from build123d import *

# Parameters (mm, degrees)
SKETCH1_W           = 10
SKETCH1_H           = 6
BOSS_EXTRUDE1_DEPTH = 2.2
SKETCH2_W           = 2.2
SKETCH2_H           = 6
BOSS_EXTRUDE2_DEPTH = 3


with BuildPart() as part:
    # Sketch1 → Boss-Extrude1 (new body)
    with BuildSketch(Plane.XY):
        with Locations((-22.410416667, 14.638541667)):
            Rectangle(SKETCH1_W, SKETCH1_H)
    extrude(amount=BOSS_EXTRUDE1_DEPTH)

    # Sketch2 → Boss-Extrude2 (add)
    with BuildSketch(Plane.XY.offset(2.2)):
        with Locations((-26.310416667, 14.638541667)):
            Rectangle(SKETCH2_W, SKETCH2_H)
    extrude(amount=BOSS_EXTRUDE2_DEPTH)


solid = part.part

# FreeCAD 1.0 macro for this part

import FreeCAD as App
import Part
import Sketcher


def add_polygon(sketch, points):
    """Adds a closed chain of lines whose ends are joined by coincident constraints."""
    first, n = sketch.GeometryCount, len(points)
    for a, b in zip(points, points[1:] + points[:1]):
        sketch.addGeometry(Part.LineSegment(App.Vector(*a, 0), App.Vector(*b, 0)), False)
    for i in range(n):
        sketch.addConstraint(Sketcher.Constraint("Coincident", first + i, 2, first + (i + 1) % n, 1))

doc = App.newDocument("Part")
body = doc.addObject("PartDesign::Body", "Body")

sketch1 = body.newObject("Sketcher::SketchObject", "Sketch")
sketch1.AttachmentSupport = (doc.getObject("XY_Plane"), [""])
sketch1.MapMode = "FlatFace"
add_polygon(sketch1, [(-27, 18), (-27, 12), (-17, 12), (-17, 18)])
sketch1.addConstraint([
    Sketcher.Constraint("Vertical", 0),
    Sketcher.Constraint("Horizontal", 1),
    Sketcher.Constraint("Vertical", 2),
    Sketcher.Constraint("Horizontal", 3),
    Sketcher.Constraint("DistanceX", 1, 1, 1, 2, 10.0),
    Sketcher.Constraint("DistanceY", 0, 2, 0, 1, 6.0),
    Sketcher.Constraint("DistanceY", -1, 1, 0, 2, 11.638542),
    Sketcher.Constraint("DistanceX", 0, 2, -1, 1, 27.410417),
])
pad1 = body.newObject("PartDesign::Pad", "Pad")
pad1.Profile = sketch1
pad1.Length = 2.2

sketch2 = body.newObject("Sketcher::SketchObject", "Sketch001")
sketch2.AttachmentSupport = (doc.getObject("XY_Plane"), [""])
sketch2.MapMode = "FlatFace"
sketch2.AttachmentOffset = App.Placement(App.Vector(0, 0, 2.2), App.Rotation())
add_polygon(sketch2, [(-27.4, 17.6), (-27.4, 11.6), (-25.2, 11.6), (-25.2, 17.6)])
sketch2.addConstraint([
    Sketcher.Constraint("Vertical", 0),
    Sketcher.Constraint("Horizontal", 1),
    Sketcher.Constraint("Vertical", 2),
    Sketcher.Constraint("Horizontal", 3),
    Sketcher.Constraint("DistanceY", 0, 2, 0, 1, 6.0),
    Sketcher.Constraint("DistanceX", 1, 1, 1, 2, 2.2),
    Sketcher.Constraint("DistanceY", -1, 1, 0, 2, 11.638542),
    Sketcher.Constraint("DistanceX", 0, 2, -1, 1, 27.410417),
])
pad2 = body.newObject("PartDesign::Pad", "Pad001")
pad2.Profile = sketch2
pad2.Length = 3

doc.recompute()
